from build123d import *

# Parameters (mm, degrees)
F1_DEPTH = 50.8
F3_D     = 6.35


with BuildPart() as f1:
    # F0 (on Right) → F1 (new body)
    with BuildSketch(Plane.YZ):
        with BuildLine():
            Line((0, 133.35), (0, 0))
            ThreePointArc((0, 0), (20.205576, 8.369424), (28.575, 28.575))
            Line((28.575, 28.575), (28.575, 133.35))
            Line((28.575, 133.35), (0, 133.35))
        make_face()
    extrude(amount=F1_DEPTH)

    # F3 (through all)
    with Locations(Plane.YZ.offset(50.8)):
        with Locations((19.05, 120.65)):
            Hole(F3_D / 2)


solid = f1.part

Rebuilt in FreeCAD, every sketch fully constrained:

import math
import FreeCAD as App
import Part
import Sketcher
Q = App.Units.Quantity

doc = App.newDocument("Part")
body = doc.addObject("PartDesign::Body", "Body")

# Sketch on YZ plane
sketch1 = body.newObject("Sketcher::SketchObject", "Sketch")
sketch1.AttachmentSupport = (doc.getObject("YZ_Plane"), [""])
sketch1.MapMode = "FlatFace"
sketch1.addGeometry([
    Part.LineSegment(App.Vector(0, 133, 0), App.Vector(0, 0, 0)),
    Part.ArcOfCircle(Part.Circle(App.Vector(0, 29, 0), App.Vector(0, 0, 1), 29), math.radians(-90), math.radians(0)),
    Part.LineSegment(App.Vector(29, 29, 0), App.Vector(29, 133, 0)),
    Part.LineSegment(App.Vector(29, 133, 0), App.Vector(0, 133, 0)),
], False)
sketch1.addConstraint([
    Sketcher.Constraint("Coincident", 0, 2, 1, 1),
    Sketcher.Constraint("Tangent", 1, 2, 2, 1),
    Sketcher.Constraint("Coincident", 2, 2, 3, 1),
    Sketcher.Constraint("Coincident", 3, 2, 0, 1),
    Sketcher.Constraint("Vertical", 0),
    Sketcher.Constraint("Vertical", 2),
    Sketcher.Constraint("Horizontal", 3),
    Sketcher.Constraint("Coincident", 0, 2, -1, 1),
    Sketcher.Constraint("PointOnObject", 1, 3, -2),
    Sketcher.Constraint("Radius", 1, Q("1.125 in")),
    Sketcher.Constraint("DistanceY", 0, 2, 0, 1, Q("5.25 in")),
])
pad1 = body.newObject("PartDesign::Pad", "Pad")
pad1.Profile = sketch1
pad1.Length = Q("2 in")

# Sketch on YZ plane
sketch2 = body.newObject("Sketcher::SketchObject", "Sketch001")
sketch2.AttachmentSupport = (doc.getObject("YZ_Plane"), [""])
sketch2.MapMode = "FlatFace"
sketch2.AttachmentOffset = App.Placement(App.Vector(0, 0, 2 * 25.4), App.Rotation())
sketch2.addGeometry(Part.Circle(App.Vector(19.1, 120.7, 0), App.Vector(0, 0, 1), 3.2), False)
sketch2.addConstraint([
    Sketcher.Constraint("Diameter", 0, Q("0.25 in")),
    Sketcher.Constraint("DistanceX", -1, 1, 0, 3, Q("0.75 in")),
    Sketcher.Constraint("DistanceY", -1, 1, 0, 3, Q("4.75 in")),
])
doc.recompute()
hole = body.newObject("PartDesign::Hole", "Hole")
hole.Profile = sketch2
hole.ThreadType = "None"
hole.Diameter = Q("0.25 in")
hole.DepthType = "ThroughAll"

doc.recompute()
